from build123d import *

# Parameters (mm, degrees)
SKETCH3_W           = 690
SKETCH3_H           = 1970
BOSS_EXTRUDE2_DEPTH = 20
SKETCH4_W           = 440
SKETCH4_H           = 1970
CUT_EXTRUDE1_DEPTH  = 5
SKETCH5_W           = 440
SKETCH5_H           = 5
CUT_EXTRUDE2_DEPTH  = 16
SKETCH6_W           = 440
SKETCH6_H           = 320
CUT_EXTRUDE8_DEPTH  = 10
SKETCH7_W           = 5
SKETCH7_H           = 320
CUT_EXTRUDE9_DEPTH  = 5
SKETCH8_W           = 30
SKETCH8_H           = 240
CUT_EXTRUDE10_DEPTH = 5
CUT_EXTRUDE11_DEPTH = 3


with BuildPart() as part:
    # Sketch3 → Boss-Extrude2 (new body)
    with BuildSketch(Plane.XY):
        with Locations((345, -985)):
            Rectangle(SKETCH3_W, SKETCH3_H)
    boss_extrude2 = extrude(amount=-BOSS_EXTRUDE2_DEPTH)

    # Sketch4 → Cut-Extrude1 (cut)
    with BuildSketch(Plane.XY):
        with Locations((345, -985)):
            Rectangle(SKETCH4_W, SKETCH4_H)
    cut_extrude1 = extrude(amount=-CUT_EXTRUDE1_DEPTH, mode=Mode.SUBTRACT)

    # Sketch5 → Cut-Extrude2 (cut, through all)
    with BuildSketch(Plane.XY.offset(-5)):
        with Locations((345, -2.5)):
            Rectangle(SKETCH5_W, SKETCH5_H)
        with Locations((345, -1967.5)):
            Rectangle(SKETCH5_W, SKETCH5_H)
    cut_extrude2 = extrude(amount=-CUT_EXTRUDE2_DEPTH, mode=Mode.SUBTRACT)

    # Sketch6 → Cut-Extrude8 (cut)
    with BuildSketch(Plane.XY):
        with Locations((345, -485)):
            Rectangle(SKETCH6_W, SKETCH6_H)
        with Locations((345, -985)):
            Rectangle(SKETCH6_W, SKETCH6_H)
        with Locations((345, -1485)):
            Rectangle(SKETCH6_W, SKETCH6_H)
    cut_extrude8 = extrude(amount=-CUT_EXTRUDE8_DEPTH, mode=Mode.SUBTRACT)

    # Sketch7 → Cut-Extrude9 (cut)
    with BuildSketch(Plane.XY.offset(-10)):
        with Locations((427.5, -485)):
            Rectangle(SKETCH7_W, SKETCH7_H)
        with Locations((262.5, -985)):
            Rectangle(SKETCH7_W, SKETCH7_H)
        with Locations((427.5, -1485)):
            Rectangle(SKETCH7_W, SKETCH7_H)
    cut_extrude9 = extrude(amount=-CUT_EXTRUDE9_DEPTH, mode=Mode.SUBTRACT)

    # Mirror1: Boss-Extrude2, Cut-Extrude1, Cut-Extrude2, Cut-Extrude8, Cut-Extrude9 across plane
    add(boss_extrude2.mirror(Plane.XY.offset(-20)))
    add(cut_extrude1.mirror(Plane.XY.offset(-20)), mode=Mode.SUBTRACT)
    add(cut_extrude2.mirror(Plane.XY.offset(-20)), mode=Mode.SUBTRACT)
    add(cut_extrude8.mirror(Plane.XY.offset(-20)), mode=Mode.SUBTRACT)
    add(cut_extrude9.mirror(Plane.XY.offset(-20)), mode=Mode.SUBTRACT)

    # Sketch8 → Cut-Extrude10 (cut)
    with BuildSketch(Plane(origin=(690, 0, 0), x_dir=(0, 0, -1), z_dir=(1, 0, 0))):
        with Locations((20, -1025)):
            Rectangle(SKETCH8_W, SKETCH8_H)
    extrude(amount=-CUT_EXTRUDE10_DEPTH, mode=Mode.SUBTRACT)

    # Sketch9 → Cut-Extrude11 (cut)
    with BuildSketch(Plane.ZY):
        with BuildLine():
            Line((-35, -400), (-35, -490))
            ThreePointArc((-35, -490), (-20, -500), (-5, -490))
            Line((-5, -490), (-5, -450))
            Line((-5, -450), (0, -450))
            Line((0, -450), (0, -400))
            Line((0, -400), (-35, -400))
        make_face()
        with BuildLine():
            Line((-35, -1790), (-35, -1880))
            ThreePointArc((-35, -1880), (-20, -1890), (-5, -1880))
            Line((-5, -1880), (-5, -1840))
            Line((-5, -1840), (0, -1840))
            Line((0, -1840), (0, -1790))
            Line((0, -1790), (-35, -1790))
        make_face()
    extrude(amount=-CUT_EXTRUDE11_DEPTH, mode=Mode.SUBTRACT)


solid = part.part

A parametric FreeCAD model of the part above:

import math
import FreeCAD as App
import Part
import Sketcher
from FreeCAD import Vector

doc = App.newDocument("Part")
body = doc.addObject("PartDesign::Body", "Body")

# Sketch on XY plane
sketch1 = body.newObject("Sketcher::SketchObject", "Sketch")
sketch1.AttachmentSupport = (doc.getObject("XY_Plane"), [""])
sketch1.MapMode = "FlatFace"
sketch1.addGeometry([
    Part.LineSegment(Vector(0, 0, 0), Vector(0, -1970, 0)),
    Part.LineSegment(Vector(0, -1970, 0), Vector(690, -1970, 0)),
    Part.LineSegment(Vector(690, -1970, 0), Vector(690, 0, 0)),
    Part.LineSegment(Vector(690, 0, 0), Vector(0, 0, 0)),
], False)
sketch1.addConstraint([
    Sketcher.Constraint("Coincident", 0, 2, 1, 1),
    Sketcher.Constraint("Coincident", 1, 2, 2, 1),
    Sketcher.Constraint("Coincident", 2, 2, 3, 1),
    Sketcher.Constraint("Coincident", 3, 2, 0, 1),
    Sketcher.Constraint("Vertical", 0),
    Sketcher.Constraint("Horizontal", 1),
    Sketcher.Constraint("Vertical", 2),
    Sketcher.Constraint("Horizontal", 3),
    Sketcher.Constraint("Coincident", 3, 2, -1, 1),
    Sketcher.Constraint("DistanceX", 1, 1, 1, 2, 690.0),
    Sketcher.Constraint("DistanceY", 0, 2, 0, 1, 1970.0),
])
pad1 = body.newObject("PartDesign::Pad", "Pad")
pad1.Profile = sketch1
pad1.Length = 20
pad1.Reversed = True

# Sketch on XY plane
sketch2 = body.newObject("Sketcher::SketchObject", "Sketch001")
sketch2.AttachmentSupport = (doc.getObject("XY_Plane"), [""])
sketch2.MapMode = "FlatFace"
sketch2.addGeometry([
    Part.LineSegment(Vector(125, 0, 0), Vector(125, -1970, 0)),
    Part.LineSegment(Vector(125, -1970, 0), Vector(565, -1970, 0)),
    Part.LineSegment(Vector(565, -1970, 0), Vector(565, 0, 0)),
    Part.LineSegment(Vector(565, 0, 0), Vector(125, 0, 0)),
], False)
sketch2.addConstraint([
    Sketcher.Constraint("Coincident", 0, 2, 1, 1),
    Sketcher.Constraint("Coincident", 1, 2, 2, 1),
    Sketcher.Constraint("Coincident", 2, 2, 3, 1),
    Sketcher.Constraint("Coincident", 3, 2, 0, 1),
    Sketcher.Constraint("Vertical", 0),
    Sketcher.Constraint("Horizontal", 1),
    Sketcher.Constraint("Vertical", 2),
    Sketcher.Constraint("Horizontal", 3),
    Sketcher.Constraint("PointOnObject", 2, 2, -1),
    Sketcher.Constraint("DistanceX", 1, 1, 1, 2, 440.0),
    Sketcher.Constraint("DistanceY", 0, 2, 0, 1, 1970.0),
    Sketcher.Constraint("DistanceX", -1, 1, 0, 2, 125.0),
])
pocket1 = body.newObject("PartDesign::Pocket", "Pocket")
pocket1.Profile = sketch2
pocket1.Length = 5

# Sketch on XY plane
sketch3 = body.newObject("Sketcher::SketchObject", "Sketch002")
sketch3.AttachmentSupport = (doc.getObject("XY_Plane"), [""])
sketch3.MapMode = "FlatFace"
sketch3.AttachmentOffset = App.Placement(Vector(0, 0, -5), App.Rotation())
sketch3.addGeometry([
    Part.LineSegment(Vector(125, 0, 0), Vector(125, -5, 0)),  # 0
    Part.LineSegment(Vector(125, -5, 0), Vector(565, -5, 0)),  # 1
    Part.LineSegment(Vector(565, -5, 0), Vector(565, 0, 0)),  # 2
    Part.LineSegment(Vector(565, 0, 0), Vector(125, 0, 0)),  # 3
    Part.LineSegment(Vector(125, -1965, 0), Vector(125, -1970, 0)),  # 4
    Part.LineSegment(Vector(125, -1970, 0), Vector(565, -1970, 0)),  # 5
    Part.LineSegment(Vector(565, -1970, 0), Vector(565, -1965, 0)),  # 6
    Part.LineSegment(Vector(565, -1965, 0), Vector(125, -1965, 0)),  # 7
], False)
sketch3.addConstraint([
    Sketcher.Constraint("Coincident", 0, 2, 1, 1),
    Sketcher.Constraint("Coincident", 1, 2, 2, 1),
    Sketcher.Constraint("Coincident", 2, 2, 3, 1),
    Sketcher.Constraint("Coincident", 3, 2, 0, 1),
    Sketcher.Constraint("Coincident", 4, 2, 5, 1),
    Sketcher.Constraint("Coincident", 5, 2, 6, 1),
    Sketcher.Constraint("Coincident", 6, 2, 7, 1),
    Sketcher.Constraint("Coincident", 7, 2, 4, 1),
    Sketcher.Constraint("Vertical", 0),
    Sketcher.Constraint("Horizontal", 1),
    Sketcher.Constraint("Vertical", 2),
    Sketcher.Constraint("Horizontal", 3),
    Sketcher.Constraint("Vertical", 4),
    Sketcher.Constraint("Horizontal", 5),
    Sketcher.Constraint("Vertical", 6),
    Sketcher.Constraint("Horizontal", 7),
    Sketcher.Constraint("PointOnObject", 2, 2, -1),
    Sketcher.Constraint("Vertical", 3, 2, 4, 2),
    Sketcher.Constraint("Vertical", 2, 2, 5, 2),
    Sketcher.Constraint("Equal", 2, 4),
    Sketcher.Constraint("DistanceX", 1, 1, 1, 2, 440.0),
    Sketcher.Constraint("DistanceY", 0, 2, 0, 1, 5.0),
    Sketcher.Constraint("DistanceX", -1, 1, 0, 2, 125.0),
    Sketcher.Constraint("DistanceY", 4, 2, -1, 1, 1970.0),
])
pocket2 = body.newObject("PartDesign::Pocket", "Pocket001")
pocket2.Profile = sketch3
pocket2.Type = "ThroughAll"

# Sketch on XY plane
sketch4 = body.newObject("Sketcher::SketchObject", "Sketch003")
sketch4.AttachmentSupport = (doc.getObject("XY_Plane"), [""])
sketch4.MapMode = "FlatFace"
sketch4.addGeometry([
    Part.LineSegment(Vector(125, -325, 0), Vector(125, -645, 0)),  # 0
    Part.LineSegment(Vector(125, -645, 0), Vector(565, -645, 0)),  # 1
    Part.LineSegment(Vector(565, -645, 0), Vector(565, -325, 0)),  # 2
    Part.LineSegment(Vector(565, -325, 0), Vector(125, -325, 0)),  # 3
    Part.LineSegment(Vector(125, -825, 0), Vector(125, -1145, 0)),  # 4
    Part.LineSegment(Vector(125, -1145, 0), Vector(565, -1145, 0)),  # 5
    Part.LineSegment(Vector(565, -1145, 0), Vector(565, -825, 0)),  # 6
    Part.LineSegment(Vector(565, -825, 0), Vector(125, -825, 0)),  # 7
    Part.LineSegment(Vector(125, -1325, 0), Vector(125, -1645, 0)),  # 8
    Part.LineSegment(Vector(125, -1645, 0), Vector(565, -1645, 0)),  # 9
    Part.LineSegment(Vector(565, -1645, 0), Vector(565, -1325, 0)),  # 10
    Part.LineSegment(Vector(565, -1325, 0), Vector(125, -1325, 0)),  # 11
], False)
sketch4.addConstraint([
    Sketcher.Constraint("Coincident", 0, 2, 1, 1),
    Sketcher.Constraint("Coincident", 1, 2, 2, 1),
    Sketcher.Constraint("Coincident", 2, 2, 3, 1),
    Sketcher.Constraint("Coincident", 3, 2, 0, 1),
    Sketcher.Constraint("Coincident", 4, 2, 5, 1),
    Sketcher.Constraint("Coincident", 5, 2, 6, 1),
    Sketcher.Constraint("Coincident", 6, 2, 7, 1),
    Sketcher.Constraint("Coincident", 7, 2, 4, 1),
    Sketcher.Constraint("Coincident", 8, 2, 9, 1),
    Sketcher.Constraint("Coincident", 9, 2, 10, 1),
    Sketcher.Constraint("Coincident", 10, 2, 11, 1),
    Sketcher.Constraint("Coincident", 11, 2, 8, 1),
    Sketcher.Constraint("Vertical", 0),
    Sketcher.Constraint("Horizontal", 1),
    Sketcher.Constraint("Vertical", 2),
    Sketcher.Constraint("Horizontal", 3),
    Sketcher.Constraint("Vertical", 4),
    Sketcher.Constraint("Horizontal", 5),
    Sketcher.Constraint("Vertical", 6),
    Sketcher.Constraint("Horizontal", 7),
    Sketcher.Constraint("Vertical", 8),
    Sketcher.Constraint("Horizontal", 9),
    Sketcher.Constraint("Vertical", 10),
    Sketcher.Constraint("Horizontal", 11),
    Sketcher.Constraint("Vertical", 3, 2, 4, 2),
    Sketcher.Constraint("Vertical", 2, 2, 5, 2),
    Sketcher.Constraint("Vertical", 7, 2, 8, 2),
    Sketcher.Constraint("Vertical", 6, 2, 9, 2),
    Sketcher.Constraint("Equal", 2, 4),
    Sketcher.Constraint("Equal", 6, 8),
    Sketcher.Constraint("DistanceX", 1, 1, 1, 2, 440.0),
    Sketcher.Constraint("DistanceY", 0, 2, 0, 1, 320.0),
    Sketcher.Constraint("DistanceX", -1, 1, 0, 2, 125.0),
    Sketcher.Constraint("DistanceY", 0, 2, -1, 1, 645.0),
    Sketcher.Constraint("DistanceY", 4, 2, -1, 1, 1145.0),
    Sketcher.Constraint("DistanceY", 8, 2, -1, 1, 1645.0),
])
pocket3 = body.newObject("PartDesign::Pocket", "Pocket002")
pocket3.Profile = sketch4
pocket3.Length = 10

# Sketch on XY plane
sketch5 = body.newObject("Sketcher::SketchObject", "Sketch004")
sketch5.AttachmentSupport = (doc.getObject("XY_Plane"), [""])
sketch5.MapMode = "FlatFace"
sketch5.AttachmentOffset = App.Placement(Vector(0, 0, -10), App.Rotation())
sketch5.addGeometry([
    Part.LineSegment(Vector(425, -325, 0), Vector(425, -645, 0)),  # 0
    Part.LineSegment(Vector(425, -645, 0), Vector(430, -645, 0)),  # 1
    Part.LineSegment(Vector(430, -645, 0), Vector(430, -325, 0)),  # 2
    Part.LineSegment(Vector(430, -325, 0), Vector(425, -325, 0)),  # 3
    Part.LineSegment(Vector(260, -825, 0), Vector(260, -1145, 0)),  # 4
    Part.LineSegment(Vector(260, -1145, 0), Vector(265, -1145, 0)),  # 5
    Part.LineSegment(Vector(265, -1145, 0), Vector(265, -825, 0)),  # 6
    Part.LineSegment(Vector(265, -825, 0), Vector(260, -825, 0)),  # 7
    Part.LineSegment(Vector(425, -1325, 0), Vector(425, -1645, 0)),  # 8
    Part.LineSegment(Vector(425, -1645, 0), Vector(430, -1645, 0)),  # 9
    Part.LineSegment(Vector(430, -1645, 0), Vector(430, -1325, 0)),  # 10
    Part.LineSegment(Vector(430, -1325, 0), Vector(425, -1325, 0)),  # 11
], False)
sketch5.addConstraint([
    Sketcher.Constraint("Coincident", 0, 2, 1, 1),
    Sketcher.Constraint("Coincident", 1, 2, 2, 1),
    Sketcher.Constraint("Coincident", 2, 2, 3, 1),
    Sketcher.Constraint("Coincident", 3, 2, 0, 1),
    Sketcher.Constraint("Coincident", 4, 2, 5, 1),
    Sketcher.Constraint("Coincident", 5, 2, 6, 1),
    Sketcher.Constraint("Coincident", 6, 2, 7, 1),
    Sketcher.Constraint("Coincident", 7, 2, 4, 1),
    Sketcher.Constraint("Coincident", 8, 2, 9, 1),
    Sketcher.Constraint("Coincident", 9, 2, 10, 1),
    Sketcher.Constraint("Coincident", 10, 2, 11, 1),
    Sketcher.Constraint("Coincident", 11, 2, 8, 1),
    Sketcher.Constraint("Vertical", 0),
    Sketcher.Constraint("Horizontal", 1),
    Sketcher.Constraint("Vertical", 2),
    Sketcher.Constraint("Horizontal", 3),
    Sketcher.Constraint("Vertical", 4),
    Sketcher.Constraint("Horizontal", 5),
    Sketcher.Constraint("Vertical", 6),
    Sketcher.Constraint("Horizontal", 7),
    Sketcher.Constraint("Vertical", 8),
    Sketcher.Constraint("Horizontal", 9),
    Sketcher.Constraint("Vertical", 10),
    Sketcher.Constraint("Horizontal", 11),
    Sketcher.Constraint("Vertical", 3, 2, 8, 2),
    Sketcher.Constraint("Vertical", 2, 2, 9, 2),
    Sketcher.Constraint("Equal", 3, 5),
    Sketcher.Constraint("Equal", 2, 4),
    Sketcher.Constraint("Equal", 6, 8),
    Sketcher.Constraint("DistanceX", 1, 1, 1, 2, 5.0),
    Sketcher.Constraint("DistanceY", 0, 2, 0, 1, 320.0),
    Sketcher.Constraint("DistanceX", -1, 1, 0, 2, 425.0),
    Sketcher.Constraint("DistanceY", 0, 2, -1, 1, 645.0),
    Sketcher.Constraint("DistanceX", -1, 1, 4, 2, 260.0),
    Sketcher.Constraint("DistanceY", 4, 2, -1, 1, 1145.0),
    Sketcher.Constraint("DistanceY", 8, 2, -1, 1, 1645.0),
])
pocket4 = body.newObject("PartDesign::Pocket", "Pocket003")
pocket4.Profile = sketch5
pocket4.Length = 5
doc.recompute()

datumplane = body.newObject("PartDesign::Plane", "DatumPlane")
datumplane.AttachmentSupport = (doc.getObject("XY_Plane"), [""])
datumplane.MapMode = "FlatFace"
datumplane.AttachmentOffset = App.Placement(Vector(0, 0, -20), App.Rotation())
mirrored = body.newObject("PartDesign::Mirrored", "Mirrored")
mirrored.Originals = [pad1, pocket1, pocket2, pocket3, pocket4]
mirrored.MirrorPlane = (datumplane, [""])
body.Tip = mirrored

# Sketch on YZ plane
sketch6 = body.newObject("Sketcher::SketchObject", "Sketch005")
sketch6.AttachmentSupport = (doc.getObject("YZ_Plane"), [""])
sketch6.MapMode = "FlatFace"
sketch6.AttachmentOffset = App.Placement(Vector(0, 0, 690), App.Rotation())
sketch6.addGeometry([
    Part.LineSegment(Vector(-905, -5, 0), Vector(-1145, -5, 0)),
    Part.LineSegment(Vector(-1145, -5, 0), Vector(-1145, -35, 0)),
    Part.LineSegment(Vector(-1145, -35, 0), Vector(-905, -35, 0)),
    Part.LineSegment(Vector(-905, -35, 0), Vector(-905, -5, 0)),
], False)
sketch6.addConstraint([
    Sketcher.Constraint("Coincident", 0, 2, 1, 1),
    Sketcher.Constraint("Coincident", 1, 2, 2, 1),
    Sketcher.Constraint("Coincident", 2, 2, 3, 1),
    Sketcher.Constraint("Coincident", 3, 2, 0, 1),
    Sketcher.Constraint("Horizontal", 0),
    Sketcher.Constraint("Vertical", 1),
    Sketcher.Constraint("Horizontal", 2),
    Sketcher.Constraint("Vertical", 3),
    Sketcher.Constraint("DistanceX", 0, 2, 0, 1, 240.0),
    Sketcher.Constraint("DistanceY", 1, 2, 1, 1, 30.0),
    Sketcher.Constraint("DistanceX", 0, 2, -1, 1, 1145.0),
    Sketcher.Constraint("DistanceY", 0, 2, -1, 1, 5.0),
])
pocket5 = body.newObject("PartDesign::Pocket", "Pocket004")
pocket5.Profile = sketch6
pocket5.Length = 5

# Sketch on YZ plane
sketch7 = body.newObject("Sketcher::SketchObject", "Sketch006")
sketch7.AttachmentSupport = (doc.getObject("YZ_Plane"), [""])
sketch7.MapMode = "FlatFace"
sketch7.addGeometry([
    Part.LineSegment(Vector(-400, -35, 0), Vector(-490, -35, 0)),  # 0
    Part.ArcOfCircle(Part.Circle(Vector(-484, -20, 0), Vector(0, 0, 1), 16), math.radians(113), math.radians(247)),  # 1
    Part.LineSegment(Vector(-490, -5, 0), Vector(-450, -5, 0)),  # 2
    Part.LineSegment(Vector(-450, -5, 0), Vector(-450, 0, 0)),  # 3
    Part.LineSegment(Vector(-450, 0, 0), Vector(-400, 0, 0)),  # 4
    Part.LineSegment(Vector(-400, 0, 0), Vector(-400, -35, 0)),  # 5
    Part.LineSegment(Vector(-1790, -35, 0), Vector(-1880, -35, 0)),  # 6
    Part.ArcOfCircle(Part.Circle(Vector(-1874, -20, 0), Vector(0, 0, 1), 16), math.radians(113), math.radians(247)),  # 7
    Part.LineSegment(Vector(-1880, -5, 0), Vector(-1840, -5, 0)),  # 8
    Part.LineSegment(Vector(-1840, -5, 0), Vector(-1840, 0, 0)),  # 9
    Part.LineSegment(Vector(-1840, 0, 0), Vector(-1790, 0, 0)),  # 10
    Part.LineSegment(Vector(-1790, 0, 0), Vector(-1790, -35, 0)),  # 11
], False)
sketch7.addConstraint([
    Sketcher.Constraint("Coincident", 0, 2, 1, 2),
    Sketcher.Constraint("Coincident", 1, 1, 2, 1),
    Sketcher.Constraint("Coincident", 2, 2, 3, 1),
    Sketcher.Constraint("Coincident", 3, 2, 4, 1),
    Sketcher.Constraint("Coincident", 4, 2, 5, 1),
    Sketcher.Constraint("Coincident", 5, 2, 0, 1),
    Sketcher.Constraint("Coincident", 6, 2, 7, 2),
    Sketcher.Constraint("Coincident", 7, 1, 8, 1),
    Sketcher.Constraint("Coincident", 8, 2, 9, 1),
    Sketcher.Constraint("Coincident", 9, 2, 10, 1),
    Sketcher.Constraint("Coincident", 10, 2, 11, 1),
    Sketcher.Constraint("Coincident", 11, 2, 6, 1),
    Sketcher.Constraint("Horizontal", 0),
    Sketcher.Constraint("Horizontal", 2),
    Sketcher.Constraint("Vertical", 3),
    Sketcher.Constraint("Horizontal", 4),
    Sketcher.Constraint("Vertical", 5),
    Sketcher.Constraint("Horizontal", 6),
    Sketcher.Constraint("Horizontal", 8),
    Sketcher.Constraint("Vertical", 9),
    Sketcher.Constraint("Horizontal", 10),
    Sketcher.Constraint("Vertical", 11),
    Sketcher.Constraint("Equal", 1, 7),
    Sketcher.Constraint("PointOnObject", 3, 2, -1),
    Sketcher.Constraint("PointOnObject", 9, 2, -1),
    Sketcher.Constraint("Horizontal", 1, 3, 7, 3),
    Sketcher.Constraint("Horizontal", 5, 2, 6, 2),
    Sketcher.Constraint("Horizontal", 2, 2, 7, 1),
    Sketcher.Constraint("Vertical", 0, 2, 1, 1),
    Sketcher.Constraint("Equal", 0, 6),
    Sketcher.Constraint("Equal", 2, 8),
    Sketcher.Constraint("DistanceX", 0, 2, 0, 1, 90.0),
    Sketcher.Constraint("DistanceX", 2, 1, 2, 2, 40.0),
    Sketcher.Constraint("DistanceY", 3, 1, 3, 2, 5.0),
    Sketcher.Constraint("DistanceY", 5, 2, 5, 1, 35.0),
    Sketcher.Constraint("Radius", 1, 16.25),
    Sketcher.Constraint("DistanceX", 0, 2, -1, 1, 490.0),
    Sketcher.Constraint("DistanceX", 6, 2, -1, 1, 1880.0),
])
pocket6 = body.newObject("PartDesign::Pocket", "Pocket005")
pocket6.Profile = sketch7
pocket6.Length = 3
pocket6.Reversed = True

doc.recompute()
